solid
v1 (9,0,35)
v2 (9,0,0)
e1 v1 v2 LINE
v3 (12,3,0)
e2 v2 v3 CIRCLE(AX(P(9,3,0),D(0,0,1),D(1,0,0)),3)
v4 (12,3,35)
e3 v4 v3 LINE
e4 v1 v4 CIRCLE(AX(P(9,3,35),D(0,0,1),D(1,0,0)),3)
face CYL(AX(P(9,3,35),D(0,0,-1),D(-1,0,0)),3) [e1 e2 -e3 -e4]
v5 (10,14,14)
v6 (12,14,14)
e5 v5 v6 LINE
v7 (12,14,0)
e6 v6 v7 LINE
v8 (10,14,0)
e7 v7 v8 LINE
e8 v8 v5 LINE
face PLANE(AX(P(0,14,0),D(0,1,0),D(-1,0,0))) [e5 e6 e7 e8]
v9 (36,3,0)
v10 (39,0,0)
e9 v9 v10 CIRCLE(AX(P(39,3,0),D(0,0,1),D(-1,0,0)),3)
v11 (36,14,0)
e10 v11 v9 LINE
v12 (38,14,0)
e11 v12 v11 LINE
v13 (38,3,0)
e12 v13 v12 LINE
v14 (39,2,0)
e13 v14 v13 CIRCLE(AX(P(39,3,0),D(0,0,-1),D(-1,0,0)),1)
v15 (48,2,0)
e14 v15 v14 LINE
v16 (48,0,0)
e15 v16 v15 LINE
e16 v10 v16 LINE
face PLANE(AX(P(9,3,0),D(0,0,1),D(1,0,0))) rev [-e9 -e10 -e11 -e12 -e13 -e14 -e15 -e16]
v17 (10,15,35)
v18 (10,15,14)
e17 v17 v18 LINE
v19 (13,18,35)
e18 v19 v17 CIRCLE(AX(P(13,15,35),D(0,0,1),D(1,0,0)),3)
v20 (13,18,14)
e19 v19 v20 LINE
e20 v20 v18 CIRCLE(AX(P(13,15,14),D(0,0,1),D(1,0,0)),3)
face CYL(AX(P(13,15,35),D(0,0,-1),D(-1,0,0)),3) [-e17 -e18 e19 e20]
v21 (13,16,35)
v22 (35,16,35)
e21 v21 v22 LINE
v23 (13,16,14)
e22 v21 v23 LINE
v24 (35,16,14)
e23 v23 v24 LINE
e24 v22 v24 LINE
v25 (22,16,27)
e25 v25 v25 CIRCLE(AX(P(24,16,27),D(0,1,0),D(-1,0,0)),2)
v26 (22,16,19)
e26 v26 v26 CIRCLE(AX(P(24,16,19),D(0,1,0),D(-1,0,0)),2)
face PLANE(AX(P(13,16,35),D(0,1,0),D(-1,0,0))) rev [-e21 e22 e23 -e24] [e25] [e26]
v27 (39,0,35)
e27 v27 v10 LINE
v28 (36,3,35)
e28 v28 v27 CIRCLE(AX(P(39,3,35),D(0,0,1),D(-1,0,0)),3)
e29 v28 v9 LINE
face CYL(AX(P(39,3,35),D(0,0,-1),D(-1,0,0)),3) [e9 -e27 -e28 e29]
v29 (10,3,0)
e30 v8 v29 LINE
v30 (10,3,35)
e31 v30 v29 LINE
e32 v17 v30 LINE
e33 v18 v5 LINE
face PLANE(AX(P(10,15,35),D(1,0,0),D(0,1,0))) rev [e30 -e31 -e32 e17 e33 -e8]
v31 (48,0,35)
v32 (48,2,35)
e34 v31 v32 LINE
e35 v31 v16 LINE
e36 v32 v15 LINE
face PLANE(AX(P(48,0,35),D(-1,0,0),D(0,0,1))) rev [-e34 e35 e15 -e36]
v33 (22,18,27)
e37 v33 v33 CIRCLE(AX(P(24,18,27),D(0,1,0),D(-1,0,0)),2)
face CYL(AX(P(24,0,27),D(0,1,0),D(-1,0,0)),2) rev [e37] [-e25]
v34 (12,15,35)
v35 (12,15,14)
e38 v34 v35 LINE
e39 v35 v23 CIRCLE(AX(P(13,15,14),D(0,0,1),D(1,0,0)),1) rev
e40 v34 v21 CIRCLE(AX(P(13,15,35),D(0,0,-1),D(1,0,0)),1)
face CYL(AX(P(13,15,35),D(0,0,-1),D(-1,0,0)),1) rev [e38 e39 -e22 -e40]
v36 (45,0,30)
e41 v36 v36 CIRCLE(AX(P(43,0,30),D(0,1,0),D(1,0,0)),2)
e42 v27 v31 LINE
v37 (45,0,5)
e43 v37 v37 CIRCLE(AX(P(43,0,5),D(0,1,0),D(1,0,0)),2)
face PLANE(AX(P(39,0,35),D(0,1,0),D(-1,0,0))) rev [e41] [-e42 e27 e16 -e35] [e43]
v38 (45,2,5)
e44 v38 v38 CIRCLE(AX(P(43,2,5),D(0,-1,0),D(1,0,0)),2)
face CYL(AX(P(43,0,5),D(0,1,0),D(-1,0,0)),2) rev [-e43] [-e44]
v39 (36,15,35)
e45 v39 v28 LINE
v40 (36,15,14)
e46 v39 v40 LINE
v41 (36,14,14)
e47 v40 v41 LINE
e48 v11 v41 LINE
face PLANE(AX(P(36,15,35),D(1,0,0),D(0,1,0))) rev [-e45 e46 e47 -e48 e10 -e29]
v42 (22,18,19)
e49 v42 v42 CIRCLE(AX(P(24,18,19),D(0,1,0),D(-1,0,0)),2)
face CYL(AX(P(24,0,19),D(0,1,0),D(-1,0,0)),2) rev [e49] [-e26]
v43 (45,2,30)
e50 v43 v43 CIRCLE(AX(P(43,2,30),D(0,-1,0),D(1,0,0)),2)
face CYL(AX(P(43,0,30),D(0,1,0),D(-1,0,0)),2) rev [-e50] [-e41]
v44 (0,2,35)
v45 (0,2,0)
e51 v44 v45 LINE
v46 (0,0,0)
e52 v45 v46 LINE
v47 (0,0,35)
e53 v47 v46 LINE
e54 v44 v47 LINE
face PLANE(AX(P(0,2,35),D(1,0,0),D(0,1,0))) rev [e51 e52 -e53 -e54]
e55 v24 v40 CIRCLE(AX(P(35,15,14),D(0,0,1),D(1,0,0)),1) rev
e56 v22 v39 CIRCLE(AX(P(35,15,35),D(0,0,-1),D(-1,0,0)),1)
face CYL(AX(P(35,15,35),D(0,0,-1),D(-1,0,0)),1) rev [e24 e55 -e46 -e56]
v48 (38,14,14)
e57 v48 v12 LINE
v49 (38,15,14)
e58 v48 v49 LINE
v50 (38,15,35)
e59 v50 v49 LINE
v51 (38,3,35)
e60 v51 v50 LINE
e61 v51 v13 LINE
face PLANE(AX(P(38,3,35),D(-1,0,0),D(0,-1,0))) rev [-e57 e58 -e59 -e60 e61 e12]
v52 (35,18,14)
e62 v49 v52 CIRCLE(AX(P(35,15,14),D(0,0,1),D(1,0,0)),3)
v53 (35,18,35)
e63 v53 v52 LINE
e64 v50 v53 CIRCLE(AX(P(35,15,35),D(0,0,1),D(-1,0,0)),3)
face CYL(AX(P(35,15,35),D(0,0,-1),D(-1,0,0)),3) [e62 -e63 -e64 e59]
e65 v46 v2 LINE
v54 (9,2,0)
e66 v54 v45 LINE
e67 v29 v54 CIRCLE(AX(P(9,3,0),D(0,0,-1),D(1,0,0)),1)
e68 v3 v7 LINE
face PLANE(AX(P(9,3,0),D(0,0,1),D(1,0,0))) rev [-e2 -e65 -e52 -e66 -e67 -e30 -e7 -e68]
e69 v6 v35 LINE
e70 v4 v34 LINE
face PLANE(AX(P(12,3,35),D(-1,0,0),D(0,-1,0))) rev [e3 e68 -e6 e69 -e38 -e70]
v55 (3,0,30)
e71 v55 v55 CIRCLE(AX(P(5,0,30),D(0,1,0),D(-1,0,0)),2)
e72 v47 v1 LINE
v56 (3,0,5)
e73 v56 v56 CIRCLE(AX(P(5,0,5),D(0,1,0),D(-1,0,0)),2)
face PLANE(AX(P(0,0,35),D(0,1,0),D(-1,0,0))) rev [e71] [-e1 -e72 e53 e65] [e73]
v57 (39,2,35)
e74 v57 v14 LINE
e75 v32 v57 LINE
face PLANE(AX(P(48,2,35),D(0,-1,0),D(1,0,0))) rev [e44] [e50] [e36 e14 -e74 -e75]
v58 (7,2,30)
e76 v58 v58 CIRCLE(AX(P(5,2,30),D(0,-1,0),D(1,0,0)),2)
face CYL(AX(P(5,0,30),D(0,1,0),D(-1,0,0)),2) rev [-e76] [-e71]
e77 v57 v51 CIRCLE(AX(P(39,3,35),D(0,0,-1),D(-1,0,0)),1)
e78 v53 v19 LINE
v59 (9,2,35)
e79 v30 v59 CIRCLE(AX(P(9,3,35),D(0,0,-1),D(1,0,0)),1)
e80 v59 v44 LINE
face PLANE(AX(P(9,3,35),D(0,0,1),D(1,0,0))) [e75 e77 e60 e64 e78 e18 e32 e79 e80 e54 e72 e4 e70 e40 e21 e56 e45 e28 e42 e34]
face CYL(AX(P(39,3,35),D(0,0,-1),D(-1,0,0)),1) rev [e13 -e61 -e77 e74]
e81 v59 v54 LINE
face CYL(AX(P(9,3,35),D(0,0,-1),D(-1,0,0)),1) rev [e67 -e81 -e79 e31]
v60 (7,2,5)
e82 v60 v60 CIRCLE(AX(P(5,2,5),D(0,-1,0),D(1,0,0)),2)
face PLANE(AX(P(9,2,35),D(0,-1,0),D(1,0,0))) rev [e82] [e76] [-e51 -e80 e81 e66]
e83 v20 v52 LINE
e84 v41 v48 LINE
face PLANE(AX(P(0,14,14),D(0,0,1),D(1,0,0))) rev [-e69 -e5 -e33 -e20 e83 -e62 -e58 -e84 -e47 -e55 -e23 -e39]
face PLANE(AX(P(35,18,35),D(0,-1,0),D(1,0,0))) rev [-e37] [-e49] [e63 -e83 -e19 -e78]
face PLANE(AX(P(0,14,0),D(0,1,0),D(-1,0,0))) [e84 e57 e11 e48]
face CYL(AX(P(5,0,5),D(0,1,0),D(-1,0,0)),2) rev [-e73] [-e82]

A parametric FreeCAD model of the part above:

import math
import FreeCAD as App
import Part
import Sketcher

V = App.Vector
Q = App.Units.Quantity

doc = App.newDocument("Part")
params = doc.addObject("Spreadsheet::Sheet", "Params")
for row, (alias, value) in enumerate([
    ("sketch1_radius", "3 mm"),
    ("sketch1_radius2", "1 mm"),
    ("sketch1_width", "9 mm"),
    ("sketch1_width2", "22 mm"),
    ("sketch1_height", "12 mm"),
    ("pad1_length", "35 mm"),
    ("sketch2_width", "48 mm"),
    ("sketch2_height", "14 mm"),
    ("pocket1_length", "4 mm"),
    ("sketch3_diameter", "4 mm"),
], start=1):
    params.set(f"A{row}", alias)
    params.set(f"B{row}", "=" + value)
    params.setAlias(f"B{row}", alias)

body = doc.addObject("PartDesign::Body", "Body")

sketch1 = body.newObject("Sketcher::SketchObject", "Sketch")
sketch1.AttachmentSupport = (doc.getObject("XY_Plane"), [""])
sketch1.MapMode = "FlatFace"
sketch1.addGeometry(Part.LineSegment(V(0, 0, 0), V(9, 0, 0)), False)
sketch1.addGeometry(Part.ArcOfCircle(Part.Circle(V(9, 3, 0), V(0, 0, 1), 3), math.radians(-90), math.radians(0)), False)
sketch1.addGeometry(Part.LineSegment(V(12, 3, 0), V(12, 15, 0)), False)
sketch1.addGeometry(Part.ArcOfCircle(Part.Circle(V(13, 15, 0), V(0, 0, 1), 1), math.radians(90), math.radians(180)), False)
sketch1.addGeometry(Part.LineSegment(V(13, 16, 0), V(35, 16, 0)), False)
sketch1.addGeometry(Part.ArcOfCircle(Part.Circle(V(35, 15, 0), V(0, 0, 1), 1), math.radians(0), math.radians(90)), False)
sketch1.addGeometry(Part.LineSegment(V(36, 15, 0), V(36, 3, 0)), False)
sketch1.addGeometry(Part.ArcOfCircle(Part.Circle(V(39, 3, 0), V(0, 0, 1), 3), math.radians(180), math.radians(270)), False)
sketch1.addGeometry(Part.LineSegment(V(39, 0, 0), V(48, 0, 0)), False)
sketch1.addGeometry(Part.LineSegment(V(48, 0, 0), V(48, 2, 0)), False)
sketch1.addGeometry(Part.LineSegment(V(48, 2, 0), V(39, 2, 0)), False)
sketch1.addGeometry(Part.ArcOfCircle(Part.Circle(V(39, 3, 0), V(0, 0, 1), 1), math.radians(-180), math.radians(-90)), False)
sketch1.addGeometry(Part.LineSegment(V(38, 3, 0), V(38, 15, 0)), False)
sketch1.addGeometry(Part.ArcOfCircle(Part.Circle(V(35, 15, 0), V(0, 0, 1), 3), math.radians(0), math.radians(90)), False)
sketch1.addGeometry(Part.LineSegment(V(35, 18, 0), V(13, 18, 0)), False)
sketch1.addGeometry(Part.ArcOfCircle(Part.Circle(V(13, 15, 0), V(0, 0, 1), 3), math.radians(90), math.radians(180)), False)
sketch1.addGeometry(Part.LineSegment(V(10, 15, 0), V(10, 3, 0)), False)
sketch1.addGeometry(Part.ArcOfCircle(Part.Circle(V(9, 3, 0), V(0, 0, 1), 1), math.radians(-90), math.radians(0)), False)
sketch1.addGeometry(Part.LineSegment(V(9, 2, 0), V(0, 2, 0)), False)
sketch1.addGeometry(Part.LineSegment(V(0, 2, 0), V(0, 0, 0)), False)
sketch1.addConstraint(Sketcher.Constraint("Tangent", 0, 2, 1, 1))
sketch1.addConstraint(Sketcher.Constraint("Tangent", 1, 2, 2, 1))
sketch1.addConstraint(Sketcher.Constraint("Tangent", 2, 2, 3, 2))
sketch1.addConstraint(Sketcher.Constraint("Tangent", 3, 1, 4, 1))
sketch1.addConstraint(Sketcher.Constraint("Tangent", 4, 2, 5, 2))
sketch1.addConstraint(Sketcher.Constraint("Tangent", 5, 1, 6, 1))
sketch1.addConstraint(Sketcher.Constraint("Tangent", 6, 2, 7, 1))
sketch1.addConstraint(Sketcher.Constraint("Tangent", 7, 2, 8, 1))
sketch1.addConstraint(Sketcher.Constraint("Coincident", 8, 2, 9, 1))
sketch1.addConstraint(Sketcher.Constraint("Coincident", 9, 2, 10, 1))
sketch1.addConstraint(Sketcher.Constraint("Tangent", 10, 2, 11, 2))
sketch1.addConstraint(Sketcher.Constraint("Tangent", 11, 1, 12, 1))
sketch1.addConstraint(Sketcher.Constraint("Tangent", 12, 2, 13, 1))
sketch1.addConstraint(Sketcher.Constraint("Tangent", 13, 2, 14, 1))
sketch1.addConstraint(Sketcher.Constraint("Tangent", 14, 2, 15, 1))
sketch1.addConstraint(Sketcher.Constraint("Tangent", 15, 2, 16, 1))
sketch1.addConstraint(Sketcher.Constraint("Tangent", 16, 2, 17, 2))
sketch1.addConstraint(Sketcher.Constraint("Tangent", 17, 1, 18, 1))
sketch1.addConstraint(Sketcher.Constraint("Coincident", 18, 2, 19, 1))
sketch1.addConstraint(Sketcher.Constraint("Coincident", 19, 2, 0, 1))
sketch1.addConstraint(Sketcher.Constraint("Horizontal", 0))
sketch1.addConstraint(Sketcher.Constraint("Vertical", 2))
sketch1.addConstraint(Sketcher.Constraint("Horizontal", 4))
sketch1.addConstraint(Sketcher.Constraint("Vertical", 6))
sketch1.addConstraint(Sketcher.Constraint("Horizontal", 8))
sketch1.addConstraint(Sketcher.Constraint("Vertical", 9))
sketch1.addConstraint(Sketcher.Constraint("Horizontal", 10))
sketch1.addConstraint(Sketcher.Constraint("Vertical", 12))
sketch1.addConstraint(Sketcher.Constraint("Horizontal", 14))
sketch1.addConstraint(Sketcher.Constraint("Vertical", 16))
sketch1.addConstraint(Sketcher.Constraint("Horizontal", 18))
sketch1.addConstraint(Sketcher.Constraint("Vertical", 19))
sketch1.addConstraint(Sketcher.Constraint("Coincident", 19, 2, -1, 1))
sketch1.addConstraint(Sketcher.Constraint("Coincident", 11, 3, 7, 3))
sketch1.addConstraint(Sketcher.Constraint("Coincident", 13, 3, 5, 3))
sketch1.addConstraint(Sketcher.Constraint("Coincident", 15, 3, 3, 3))
sketch1.addConstraint(Sketcher.Constraint("Coincident", 17, 3, 1, 3))
sketch1.addConstraint(Sketcher.Constraint("Equal", 3, 5))
sketch1.addConstraint(Sketcher.Constraint("Equal", 1, 7))
sketch1.addConstraint(Sketcher.Constraint("Equal", 5, 11))
sketch1.addConstraint(Sketcher.Constraint("PointOnObject", 7, 2, -1))
sketch1.addConstraint(Sketcher.Constraint("Equal", 0, 8))
sketch1.addConstraint(Sketcher.Constraint("Radius", 1, Q("3 mm")))
sketch1.addConstraint(Sketcher.Constraint("Radius", 3, Q("1 mm")))
sketch1.addConstraint(Sketcher.Constraint("DistanceX", 0, 1, 0, 2, Q("9 mm")))
sketch1.addConstraint(Sketcher.Constraint("DistanceX", 4, 1, 4, 2, Q("22 mm")))
sketch1.addConstraint(Sketcher.Constraint("DistanceY", 2, 1, 2, 2, Q("12 mm")))
sketch1.setExpression("Constraints[42]", "Params.sketch1_radius")
sketch1.setExpression("Constraints[43]", "Params.sketch1_radius2")
sketch1.setExpression("Constraints[44]", "Params.sketch1_width")
sketch1.setExpression("Constraints[45]", "Params.sketch1_width2")
sketch1.setExpression("Constraints[46]", "Params.sketch1_height")
pad1 = body.newObject("PartDesign::Pad", "Pad")
pad1.Profile = sketch1
pad1.setExpression("Length", "Params.pad1_length")

sketch2 = body.newObject("Sketcher::SketchObject", "Sketch001")
sketch2.AttachmentSupport = (doc.getObject("XZ_Plane"), [""])
sketch2.MapMode = "FlatFace"
sketch2.AttachmentOffset = App.Placement(V(0, 0, -18), App.Rotation())
sketch2.addGeometry(Part.LineSegment(V(0, 0, 0), V(0, 14, 0)), False)
sketch2.addGeometry(Part.LineSegment(V(0, 14, 0), V(48, 14, 0)), False)
sketch2.addGeometry(Part.LineSegment(V(48, 14, 0), V(48, 0, 0)), False)
sketch2.addGeometry(Part.LineSegment(V(48, 0, 0), V(0, 0, 0)), False)
sketch2.addConstraint(Sketcher.Constraint("Coincident", 0, 2, 1, 1))
sketch2.addConstraint(Sketcher.Constraint("Coincident", 1, 2, 2, 1))
sketch2.addConstraint(Sketcher.Constraint("Coincident", 2, 2, 3, 1))
sketch2.addConstraint(Sketcher.Constraint("Coincident", 3, 2, 0, 1))
sketch2.addConstraint(Sketcher.Constraint("Vertical", 0))
sketch2.addConstraint(Sketcher.Constraint("Horizontal", 1))
sketch2.addConstraint(Sketcher.Constraint("Vertical", 2))
sketch2.addConstraint(Sketcher.Constraint("Horizontal", 3))
sketch2.addConstraint(Sketcher.Constraint("Coincident", 3, 2, -1, 1))
sketch2.addConstraint(Sketcher.Constraint("DistanceX", 1, 1, 1, 2, Q("48 mm")))
sketch2.addConstraint(Sketcher.Constraint("DistanceY", 0, 1, 0, 2, Q("14 mm")))
sketch2.setExpression("Constraints[9]", "Params.sketch2_width")
sketch2.setExpression("Constraints[10]", "Params.sketch2_height")
pocket1 = body.newObject("PartDesign::Pocket", "Pocket")
pocket1.Profile = sketch2
pocket1.setExpression("Length", "Params.pocket1_length")
pocket1.Reversed = True

sketch3 = body.newObject("Sketcher::SketchObject", "Sketch002")
sketch3.AttachmentSupport = (doc.getObject("XZ_Plane"), [""])
sketch3.MapMode = "FlatFace"
sketch3.AttachmentOffset = App.Placement(V(0, 0, -18), App.Rotation())
sketch3.addGeometry(Part.Circle(V(24, 19, 0), V(0, 0, 1), 2), False)
sketch3.addGeometry(Part.Circle(V(24, 27, 0), V(0, 0, 1), 2), False)
sketch3.addGeometry(Part.Circle(V(5, 30, 0), V(0, 0, 1), 2), False)
sketch3.addGeometry(Part.Circle(V(5, 5, 0), V(0, 0, 1), 2), False)
sketch3.addGeometry(Part.Circle(V(43, 30, 0), V(0, 0, 1), 2), False)
sketch3.addGeometry(Part.Circle(V(43, 5, 0), V(0, 0, 1), 2), False)
sketch3.addConstraint(Sketcher.Constraint("Equal", 0, 1))
sketch3.addConstraint(Sketcher.Constraint("Equal", 1, 2))
sketch3.addConstraint(Sketcher.Constraint("Equal", 2, 3))
sketch3.addConstraint(Sketcher.Constraint("Equal", 3, 4))
sketch3.addConstraint(Sketcher.Constraint("Equal", 4, 5))
sketch3.addConstraint(Sketcher.Constraint("Horizontal", 2, 3, 4, 3))
sketch3.addConstraint(Sketcher.Constraint("Horizontal", 3, 3, 5, 3))
sketch3.addConstraint(Sketcher.Constraint("Vertical", 0, 3, 1, 3))
sketch3.addConstraint(Sketcher.Constraint("Vertical", 2, 3, 3, 3))
sketch3.addConstraint(Sketcher.Constraint("Vertical", 4, 3, 5, 3))
sketch3.addConstraint(Sketcher.Constraint("Diameter", 0, Q("4 mm")))
sketch3.addConstraint(Sketcher.Constraint("DistanceX", -1, 1, 0, 3, Q("24 mm")))
sketch3.addConstraint(Sketcher.Constraint("DistanceY", -1, 1, 0, 3, Q("19 mm")))
sketch3.addConstraint(Sketcher.Constraint("DistanceY", -1, 1, 1, 3, Q("27 mm")))
sketch3.addConstraint(Sketcher.Constraint("DistanceX", -1, 1, 2, 3, Q("5 mm")))
sketch3.addConstraint(Sketcher.Constraint("DistanceY", -1, 1, 2, 3, Q("30 mm")))
sketch3.addConstraint(Sketcher.Constraint("DistanceY", -1, 1, 3, 3, Q("5 mm")))
sketch3.addConstraint(Sketcher.Constraint("DistanceX", -1, 1, 4, 3, Q("43 mm")))
sketch3.setExpression("Constraints[10]", "Params.sketch3_diameter")
pocket2 = body.newObject("PartDesign::Pocket", "Pocket001")
pocket2.Profile = sketch3
pocket2.Type = "ThroughAll"
pocket2.Reversed = True

doc.recompute()
